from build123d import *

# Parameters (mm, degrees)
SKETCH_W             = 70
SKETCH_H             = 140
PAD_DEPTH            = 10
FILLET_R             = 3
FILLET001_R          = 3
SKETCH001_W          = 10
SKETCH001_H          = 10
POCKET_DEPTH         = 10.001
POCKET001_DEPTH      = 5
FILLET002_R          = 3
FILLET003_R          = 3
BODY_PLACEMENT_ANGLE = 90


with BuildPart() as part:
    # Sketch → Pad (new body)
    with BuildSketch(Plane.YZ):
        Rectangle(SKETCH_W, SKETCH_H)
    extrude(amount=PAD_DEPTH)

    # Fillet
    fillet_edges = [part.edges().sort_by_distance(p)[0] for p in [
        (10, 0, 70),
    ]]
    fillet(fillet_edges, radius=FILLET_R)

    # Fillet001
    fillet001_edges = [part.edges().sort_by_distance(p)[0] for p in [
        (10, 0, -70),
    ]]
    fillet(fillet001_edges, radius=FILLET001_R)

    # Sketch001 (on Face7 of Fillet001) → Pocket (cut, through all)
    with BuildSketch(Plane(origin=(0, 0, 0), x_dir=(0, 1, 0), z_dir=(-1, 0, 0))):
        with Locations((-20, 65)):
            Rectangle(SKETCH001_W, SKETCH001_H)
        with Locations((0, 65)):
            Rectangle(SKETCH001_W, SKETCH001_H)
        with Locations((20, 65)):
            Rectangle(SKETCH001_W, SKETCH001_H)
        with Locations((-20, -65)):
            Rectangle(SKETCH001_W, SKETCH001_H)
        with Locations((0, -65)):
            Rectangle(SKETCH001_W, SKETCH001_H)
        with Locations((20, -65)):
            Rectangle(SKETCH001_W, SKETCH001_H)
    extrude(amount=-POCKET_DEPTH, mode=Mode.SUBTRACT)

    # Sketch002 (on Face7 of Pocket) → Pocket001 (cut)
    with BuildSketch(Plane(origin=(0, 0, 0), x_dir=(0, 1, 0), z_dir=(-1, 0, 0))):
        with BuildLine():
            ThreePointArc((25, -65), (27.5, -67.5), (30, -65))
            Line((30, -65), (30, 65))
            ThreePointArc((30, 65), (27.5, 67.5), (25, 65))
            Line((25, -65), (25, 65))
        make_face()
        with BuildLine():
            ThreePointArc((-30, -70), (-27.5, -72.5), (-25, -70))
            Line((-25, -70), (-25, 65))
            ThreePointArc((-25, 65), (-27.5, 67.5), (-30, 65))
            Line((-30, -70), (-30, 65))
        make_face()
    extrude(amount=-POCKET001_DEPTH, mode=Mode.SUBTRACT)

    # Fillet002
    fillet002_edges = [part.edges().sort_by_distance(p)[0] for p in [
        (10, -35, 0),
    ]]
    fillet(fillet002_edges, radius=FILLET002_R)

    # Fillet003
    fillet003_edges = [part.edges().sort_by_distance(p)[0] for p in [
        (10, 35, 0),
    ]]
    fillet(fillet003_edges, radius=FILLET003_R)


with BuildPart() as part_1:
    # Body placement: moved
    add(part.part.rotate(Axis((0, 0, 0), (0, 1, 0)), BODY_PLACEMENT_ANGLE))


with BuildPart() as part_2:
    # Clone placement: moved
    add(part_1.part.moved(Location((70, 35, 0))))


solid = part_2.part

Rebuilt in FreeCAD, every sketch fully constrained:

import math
import FreeCAD as App
import Part
import Sketcher


def edges_at(feature, points):
    """Names of the edges that pass closest to the given points."""
    edges = feature.Shape.Edges
    near = lambda p: min(range(len(edges)), key=lambda i: edges[i].distToShape(Part.Vertex(*p))[0])
    return sorted({f"Edge{near(p) + 1}" for p in points})


def add_polygon(sketch, points):
    """Adds a closed chain of lines whose ends are joined by coincident constraints."""
    first, n = sketch.GeometryCount, len(points)
    for a, b in zip(points, points[1:] + points[:1]):
        sketch.addGeometry(Part.LineSegment(App.Vector(*a, 0), App.Vector(*b, 0)), False)
    for i in range(n):
        sketch.addConstraint(Sketcher.Constraint("Coincident", first + i, 2, first + (i + 1) % n, 1))

doc = App.newDocument("Part")
params = doc.addObject("Spreadsheet::Sheet", "Params")
for row, (alias, value) in enumerate([
    ("sketch1_width", "70 mm"),
    ("sketch1_height", "140 mm"),
    ("pad1_length", "10 mm"),
    ("fillet_radius", "3 mm"),
    ("fillet2_radius", "3 mm"),
    ("sketch2_width", "10 mm"),
    ("sketch3_radius", "2.5 mm"),
    ("sketch3_height", "130 mm"),
    ("sketch3_height2", "135 mm"),
    ("pocket2_length", "5 mm"),
    ("fillet3_radius", "3 mm"),
    ("fillet4_radius", "3 mm"),
], start=1):
    params.set(f"A{row}", alias)
    params.set(f"B{row}", "=" + value)
    params.setAlias(f"B{row}", alias)

body = doc.addObject("PartDesign::Body", "Body")

sketch1 = body.newObject("Sketcher::SketchObject", "Sketch")
sketch1.AttachmentSupport = (doc.getObject("YZ_Plane"), [""])
sketch1.MapMode = "FlatFace"
add_polygon(sketch1, [(-35, 70), (-35, -70), (35, -70), (35, 70)])
sketch1.addConstraint([
    Sketcher.Constraint("Vertical", 0),
    Sketcher.Constraint("Horizontal", 1),
    Sketcher.Constraint("Vertical", 2),
    Sketcher.Constraint("Horizontal", 3),
    Sketcher.Constraint("Symmetric", 0, 2, 2, 2, -1, 1),
    Sketcher.Constraint("DistanceX", 1, 1, 1, 2, 70.0),
    Sketcher.Constraint("DistanceY", 0, 2, 0, 1, 140.0),
])
sketch1.setExpression("Constraints[9]", "Params.sketch1_width")
sketch1.setExpression("Constraints[10]", "Params.sketch1_height")
pad1 = body.newObject("PartDesign::Pad", "Pad")
pad1.Profile = sketch1
pad1.setExpression("Length", "Params.pad1_length")
doc.recompute()

fillet = body.newObject("PartDesign::Fillet", "Fillet")
fillet.Base = (pad1, edges_at(pad1, [(10, 0, 70)]))
fillet.setExpression("Radius", "Params.fillet_radius")
doc.recompute()

fillet2 = body.newObject("PartDesign::Fillet", "Fillet001")
fillet2.Base = (fillet, edges_at(fillet, [(10, 0, -70)]))
fillet2.setExpression("Radius", "Params.fillet2_radius")

sketch2 = body.newObject("Sketcher::SketchObject", "Sketch001")
sketch2.AttachmentSupport = (doc.getObject("YZ_Plane"), [""])
sketch2.MapMode = "FlatFace"
add_polygon(sketch2, [(-25, -70), (-25, -60), (-15, -60), (-15, -70)])
add_polygon(sketch2, [(-5, -70), (-5, -60), (5, -60), (5, -70)])
add_polygon(sketch2, [(15, -70), (15, -60), (25, -60), (25, -70)])
add_polygon(sketch2, [(-25, 60), (-25, 70), (-15, 70), (-15, 60)])
add_polygon(sketch2, [(-5, 60), (-5, 70), (5, 70), (5, 60)])
add_polygon(sketch2, [(15, 60), (15, 70), (25, 70), (25, 60)])
sketch2.addConstraint([
    Sketcher.Constraint("Vertical", 0),
    Sketcher.Constraint("Horizontal", 1),
    Sketcher.Constraint("Vertical", 2),
    Sketcher.Constraint("Horizontal", 3),
    Sketcher.Constraint("Vertical", 4),
    Sketcher.Constraint("Horizontal", 5),
    Sketcher.Constraint("Vertical", 6),
    Sketcher.Constraint("Horizontal", 7),
    Sketcher.Constraint("Vertical", 8),
    Sketcher.Constraint("Horizontal", 9),
    Sketcher.Constraint("Vertical", 10),
    Sketcher.Constraint("Horizontal", 11),
    Sketcher.Constraint("Vertical", 12),
    Sketcher.Constraint("Horizontal", 13),
    Sketcher.Constraint("Vertical", 14),
    Sketcher.Constraint("Horizontal", 15),
    Sketcher.Constraint("Vertical", 16),
    Sketcher.Constraint("Horizontal", 17),
    Sketcher.Constraint("Vertical", 18),
    Sketcher.Constraint("Horizontal", 19),
    Sketcher.Constraint("Vertical", 20),
    Sketcher.Constraint("Horizontal", 21),
    Sketcher.Constraint("Vertical", 22),
    Sketcher.Constraint("Horizontal", 23),
    Sketcher.Constraint("Symmetric", 10, 2, 12, 2, -1, 1),
    Sketcher.Constraint("Symmetric", 8, 2, 14, 2, -1, 1),
    Sketcher.Constraint("Symmetric", 6, 2, 16, 2, -1, 1),
    Sketcher.Constraint("Symmetric", 4, 2, 18, 2, -1, 1),
    Sketcher.Constraint("Symmetric", 2, 2, 20, 2, -1, 1),
    Sketcher.Constraint("Symmetric", 0, 2, 22, 2, -1, 1),
    Sketcher.Constraint("Symmetric", 1, 2, 8, 2, -2),
    Sketcher.Constraint("Symmetric", 3, 2, 10, 2, -2),
    Sketcher.Constraint("Horizontal", 1, 2, 4, 2),
    Sketcher.Constraint("Horizontal", 3, 2, 6, 2),
    Sketcher.Constraint("Vertical", 7, 2, 16, 2),
    Sketcher.Constraint("Equal", 3, 5),
    Sketcher.Constraint("Equal", 23, 0),
    Sketcher.Constraint("DistanceX", 1, 1, 1, 2, 10.0),
    Sketcher.Constraint("DistanceX", 0, 2, -1, 1, 25.0),
    Sketcher.Constraint("DistanceY", 0, 2, -1, 1, 60.0),
])
sketch2.setExpression("Constraints[61]", "Params.sketch2_width")
pocket1 = body.newObject("PartDesign::Pocket", "Pocket")
pocket1.Profile = sketch2
pocket1.Type = "ThroughAll"
pocket1.Reversed = True

sketch3 = body.newObject("Sketcher::SketchObject", "Sketch002")
sketch3.AttachmentSupport = (doc.getObject("YZ_Plane"), [""])
sketch3.MapMode = "FlatFace"
sketch3.addGeometry([
    Part.ArcOfCircle(Part.Circle(App.Vector(27.5, 65, 0), App.Vector(0, 0, 1), 2.5), math.radians(0), math.radians(180)),
    Part.LineSegment(App.Vector(30, 65, 0), App.Vector(30, -65, 0)),
    Part.ArcOfCircle(Part.Circle(App.Vector(27.5, -65, 0), App.Vector(0, 0, 1), 2.5), math.radians(180), math.radians(360)),
    Part.LineSegment(App.Vector(25, -65, 0), App.Vector(25, 65, 0)),
    Part.ArcOfCircle(Part.Circle(App.Vector(-27.5, 70, 0), App.Vector(0, 0, 1), 2.5), math.radians(0), math.radians(180)),
    Part.LineSegment(App.Vector(-25, 70, 0), App.Vector(-25, -65, 0)),
    Part.ArcOfCircle(Part.Circle(App.Vector(-27.5, -65, 0), App.Vector(0, 0, 1), 2.5), math.radians(180), math.radians(360)),
    Part.LineSegment(App.Vector(-30, -65, 0), App.Vector(-30, 70, 0)),
], False)
sketch3.addConstraint([
    Sketcher.Constraint("Tangent", 0, 1, 1, 1),
    Sketcher.Constraint("Tangent", 1, 2, 2, 2),
    Sketcher.Constraint("Tangent", 2, 1, 3, 1),
    Sketcher.Constraint("Tangent", 3, 2, 0, 2),
    Sketcher.Constraint("Tangent", 4, 1, 5, 1),
    Sketcher.Constraint("Tangent", 5, 2, 6, 2),
    Sketcher.Constraint("Tangent", 6, 1, 7, 1),
    Sketcher.Constraint("Tangent", 7, 2, 4, 2),
    Sketcher.Constraint("Vertical", 1),
    Sketcher.Constraint("Vertical", 3),
    Sketcher.Constraint("Vertical", 5),
    Sketcher.Constraint("Vertical", 7),
    Sketcher.Constraint("Equal", 2, 4),
    Sketcher.Constraint("Symmetric", 0, 3, 6, 3, -1, 1),
    Sketcher.Constraint("Horizontal", 2, 3, 6, 3),
    Sketcher.Constraint("Radius", 0, 2.5),
    Sketcher.Constraint("DistanceY", 1, 2, 1, 1, 130.0),
    Sketcher.Constraint("DistanceY", 5, 2, 5, 1, 135.0),
    Sketcher.Constraint("DistanceX", -1, 1, 0, 1, 30.0),
])
sketch3.setExpression("Constraints[15]", "Params.sketch3_radius")
sketch3.setExpression("Constraints[16]", "Params.sketch3_height")
sketch3.setExpression("Constraints[17]", "Params.sketch3_height2")
pocket2 = body.newObject("PartDesign::Pocket", "Pocket001")
pocket2.Profile = sketch3
pocket2.setExpression("Length", "Params.pocket2_length")
pocket2.Reversed = True
doc.recompute()

fillet3 = body.newObject("PartDesign::Fillet", "Fillet002")
fillet3.Base = (pocket2, edges_at(pocket2, [(10, -35, 0)]))
fillet3.setExpression("Radius", "Params.fillet3_radius")
doc.recompute()

fillet4 = body.newObject("PartDesign::Fillet", "Fillet003")
fillet4.Base = (fillet3, edges_at(fillet3, [(10, 35, 0)]))
fillet4.setExpression("Radius", "Params.fillet4_radius")
body2 = doc.addObject("PartDesign::Body", "Body001")
doc.recompute()

body.Placement = App.Placement(App.Vector(0, 0, 0), App.Rotation(App.Vector(0, 1, 0), 90))
boolean = body2.newObject("PartDesign::Boolean", "Boolean")
boolean.Type = "Fuse"
boolean.addObjects([body])
body3 = doc.addObject("PartDesign::Body", "Body002")
doc.recompute()

body2.Placement = App.Placement(App.Vector(70, 35, 0), App.Rotation(App.Vector(0, 0, 1), 0))
boolean2 = body3.newObject("PartDesign::Boolean", "Boolean001")
boolean2.Type = "Fuse"
boolean2.addObjects([body2])

doc.recompute()
